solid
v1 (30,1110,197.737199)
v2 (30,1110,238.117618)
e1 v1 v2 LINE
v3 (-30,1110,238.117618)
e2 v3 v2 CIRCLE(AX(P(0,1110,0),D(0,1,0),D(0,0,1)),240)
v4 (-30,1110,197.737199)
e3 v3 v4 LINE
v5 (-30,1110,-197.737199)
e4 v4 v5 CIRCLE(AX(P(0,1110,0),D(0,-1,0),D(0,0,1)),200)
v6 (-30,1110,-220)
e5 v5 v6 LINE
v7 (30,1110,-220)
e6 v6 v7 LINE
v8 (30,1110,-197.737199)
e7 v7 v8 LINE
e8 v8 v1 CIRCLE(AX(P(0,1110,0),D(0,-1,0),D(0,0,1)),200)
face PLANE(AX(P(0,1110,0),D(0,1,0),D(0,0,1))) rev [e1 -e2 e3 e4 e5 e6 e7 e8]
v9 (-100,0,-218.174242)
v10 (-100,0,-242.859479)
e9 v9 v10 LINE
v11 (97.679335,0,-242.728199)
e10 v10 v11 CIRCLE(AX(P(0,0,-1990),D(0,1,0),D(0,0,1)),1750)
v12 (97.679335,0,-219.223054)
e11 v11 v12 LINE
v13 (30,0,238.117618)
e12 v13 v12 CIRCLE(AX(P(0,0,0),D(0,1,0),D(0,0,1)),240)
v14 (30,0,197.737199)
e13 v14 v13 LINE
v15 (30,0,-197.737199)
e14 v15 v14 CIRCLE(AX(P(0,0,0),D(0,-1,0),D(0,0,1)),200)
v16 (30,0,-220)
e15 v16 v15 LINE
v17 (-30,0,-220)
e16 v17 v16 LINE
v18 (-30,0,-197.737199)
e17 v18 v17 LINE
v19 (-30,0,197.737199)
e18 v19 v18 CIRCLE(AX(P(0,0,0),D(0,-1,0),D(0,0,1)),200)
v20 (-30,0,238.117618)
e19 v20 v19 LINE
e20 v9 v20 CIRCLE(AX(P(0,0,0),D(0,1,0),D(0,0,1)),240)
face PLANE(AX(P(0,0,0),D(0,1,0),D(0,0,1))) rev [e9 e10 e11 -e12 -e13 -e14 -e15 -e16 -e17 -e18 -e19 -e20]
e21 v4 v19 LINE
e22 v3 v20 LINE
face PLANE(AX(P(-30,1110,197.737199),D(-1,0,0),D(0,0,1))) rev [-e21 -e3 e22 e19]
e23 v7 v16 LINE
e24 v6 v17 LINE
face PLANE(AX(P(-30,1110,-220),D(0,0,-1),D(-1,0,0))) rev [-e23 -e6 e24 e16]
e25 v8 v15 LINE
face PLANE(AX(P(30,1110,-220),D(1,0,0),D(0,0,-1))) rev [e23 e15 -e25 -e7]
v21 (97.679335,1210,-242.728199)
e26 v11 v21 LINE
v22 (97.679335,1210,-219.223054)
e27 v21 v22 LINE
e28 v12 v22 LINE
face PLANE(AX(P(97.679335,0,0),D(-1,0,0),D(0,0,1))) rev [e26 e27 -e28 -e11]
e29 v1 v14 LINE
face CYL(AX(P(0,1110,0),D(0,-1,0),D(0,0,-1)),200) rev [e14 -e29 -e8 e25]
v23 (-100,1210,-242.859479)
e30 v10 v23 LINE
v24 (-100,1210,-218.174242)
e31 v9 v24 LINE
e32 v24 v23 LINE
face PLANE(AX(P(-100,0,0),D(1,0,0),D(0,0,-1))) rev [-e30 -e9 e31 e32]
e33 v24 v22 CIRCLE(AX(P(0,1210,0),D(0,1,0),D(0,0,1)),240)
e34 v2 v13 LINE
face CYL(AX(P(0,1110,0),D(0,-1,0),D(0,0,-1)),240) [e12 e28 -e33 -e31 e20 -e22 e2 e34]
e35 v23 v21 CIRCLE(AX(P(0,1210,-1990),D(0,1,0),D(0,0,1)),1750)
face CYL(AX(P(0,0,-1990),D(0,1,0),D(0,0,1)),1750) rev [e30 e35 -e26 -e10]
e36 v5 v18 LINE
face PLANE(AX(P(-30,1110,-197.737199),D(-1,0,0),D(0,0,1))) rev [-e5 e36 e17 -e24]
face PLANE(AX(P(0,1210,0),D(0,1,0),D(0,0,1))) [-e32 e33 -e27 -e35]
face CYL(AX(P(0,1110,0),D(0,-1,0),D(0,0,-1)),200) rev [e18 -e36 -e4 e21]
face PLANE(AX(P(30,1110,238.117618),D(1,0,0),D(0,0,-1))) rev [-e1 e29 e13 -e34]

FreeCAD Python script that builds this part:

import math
import FreeCAD as App
import Part
import Sketcher

V = App.Vector

doc = App.newDocument("Part")
body = doc.addObject("PartDesign::Body", "Body")

# Sketch on XZ plane
sketch1 = body.newObject("Sketcher::SketchObject", "Sketch")
sketch1.AttachmentSupport = (doc.getObject("XZ_Plane"), [""])
sketch1.MapMode = "FlatFace"
sketch1.addGeometry([
    Part.LineSegment(V(-30, 238.117618, 0), V(-30, 197.737199, 0)),  # 0
    Part.ArcOfCircle(Part.Circle(V(0, 0, 0), V(0, 0, 1), 200), math.radians(98.626927), math.radians(261.373073)),  # 1
    Part.LineSegment(V(-30, -197.737199, 0), V(-30, -220, 0)),  # 2
    Part.LineSegment(V(-30, -220, 0), V(30, -220, 0)),  # 3
    Part.LineSegment(V(30, -220, 0), V(30, -197.737199, 0)),  # 4
    Part.ArcOfCircle(Part.Circle(V(0, 0, 0), V(0, 0, 1), 200), math.radians(-81.373073), math.radians(81.373073)),  # 5
    Part.LineSegment(V(30, 197.737199, 0), V(30, 238.117618, 0)),  # 6
    Part.ArcOfCircle(Part.Circle(V(0, 0, 0), V(0, 0, 1), 240), math.radians(97.180756), math.radians(442.819244)),  # 7
], False)
sketch1.addConstraint([
    Sketcher.Constraint("Coincident", 0, 2, 1, 1),
    Sketcher.Constraint("Coincident", 1, 2, 2, 1),
    Sketcher.Constraint("Coincident", 2, 2, 3, 1),
    Sketcher.Constraint("Coincident", 3, 2, 4, 1),
    Sketcher.Constraint("Coincident", 4, 2, 5, 1),
    Sketcher.Constraint("Coincident", 5, 2, 6, 1),
    Sketcher.Constraint("Coincident", 6, 2, 7, 2),
    Sketcher.Constraint("Coincident", 7, 1, 0, 1),
    Sketcher.Constraint("Vertical", 0),
    Sketcher.Constraint("Vertical", 2),
    Sketcher.Constraint("Horizontal", 3),
    Sketcher.Constraint("Vertical", 4),
    Sketcher.Constraint("Vertical", 6),
    Sketcher.Constraint("Coincident", 1, 3, -1, 1),
    Sketcher.Constraint("Coincident", 5, 3, -1, 1),
    Sketcher.Constraint("Coincident", 7, 3, -1, 1),
    Sketcher.Constraint("Equal", 1, 5),
    Sketcher.Constraint("Horizontal", 1, 2, 4, 2),
    Sketcher.Constraint("Horizontal", 0, 2, 5, 2),
    Sketcher.Constraint("Vertical", 0, 2, 1, 2),
    Sketcher.Constraint("Radius", 1, 200.0),
    Sketcher.Constraint("Radius", 7, 240.0),
    Sketcher.Constraint("DistanceX", 3, 1, 3, 2, 60.0),
    Sketcher.Constraint("DistanceY", 2, 2, -1, 1, 220.0),
])
pad1 = body.newObject("PartDesign::Pad", "Pad")
pad1.Profile = sketch1
pad1.Length = 1110
pad1.Reversed = True

# Sketch on XZ plane
sketch2 = body.newObject("Sketcher::SketchObject", "Sketch001")
sketch2.AttachmentSupport = (doc.getObject("XZ_Plane"), [""])
sketch2.MapMode = "FlatFace"
sketch2.AttachmentOffset = App.Placement(V(0, 0, -1110), App.Rotation())
sketch2.addGeometry(Part.Circle(V(0, 0, 0), V(0, 0, 1), 240), False)
sketch2.addConstraint([
    Sketcher.Constraint("Coincident", 0, 3, -1, 1),
    Sketcher.Constraint("Diameter", 0, 480.0),
])
pad2 = body.newObject("PartDesign::Pad", "Pad001")
pad2.Profile = sketch2
pad2.Length = 100
pad2.Reversed = True

# Sketch on XZ plane
sketch3 = body.newObject("Sketcher::SketchObject", "Sketch002")
sketch3.AttachmentSupport = (doc.getObject("XZ_Plane"), [""])
sketch3.MapMode = "FlatFace"
sketch3.AttachmentOffset = App.Placement(V(0, 0, -1210), App.Rotation())
sketch3.addGeometry([
    Part.LineSegment(V(-100, -242.859479, 0), V(-100, -218.174242, 0)),  # 0
    Part.ArcOfCircle(Part.Circle(V(0, 0, 0), V(0, 0, 1), 240), math.radians(-114.624318), math.radians(-90)),  # 1
    Part.ArcOfCircle(Part.Circle(V(0, -1989.999999, 0), V(0, 0, 1), 1749.999999), math.radians(90), math.radians(93.275829)),  # 2
    Part.ArcOfCircle(Part.Circle(V(0, -1990.000001, 0), V(0, 0, 1), 1750.000001), math.radians(86.800272), math.radians(90)),  # 3
    Part.ArcOfCircle(Part.Circle(V(0, 0, 0), V(0, 0, 1), 240), math.radians(-90), math.radians(-65.983656)),  # 4
    Part.LineSegment(V(97.679335, -219.223054, 0), V(97.679335, -242.728199, 0)),  # 5
], False)
sketch3.addConstraint([
    Sketcher.Constraint("Coincident", 0, 2, 1, 1),
    Sketcher.Constraint("Tangent", 1, 2, 2, 1),
    Sketcher.Constraint("Coincident", 2, 2, 0, 1),
    Sketcher.Constraint("Tangent", 3, 2, 4, 1),
    Sketcher.Constraint("Coincident", 4, 2, 5, 1),
    Sketcher.Constraint("Coincident", 5, 2, 3, 1),
    Sketcher.Constraint("Vertical", 0),
    Sketcher.Constraint("Vertical", 5),
    Sketcher.Constraint("Coincident", 1, 3, -1, 1),
    Sketcher.Constraint("Coincident", 4, 3, -1, 1),
    Sketcher.Constraint("Coincident", 3, 3, 2, 3),
    Sketcher.Constraint("Equal", 2, 3),
    Sketcher.Constraint("PointOnObject", 2, 3, -2),
    Sketcher.Constraint("Radius", 1, 240.0),
    Sketcher.Constraint("Radius", 2, 1749.999999),
    Sketcher.Constraint("DistanceX", 0, 2, -1, 1, 100.0),
    Sketcher.Constraint("DistanceY", 5, 2, -1, 1, 242.728199),
])
pad3 = body.newObject("PartDesign::Pad", "Pad002")
pad3.Profile = sketch3
pad3.Type = "UpToLast"

doc.recompute()
